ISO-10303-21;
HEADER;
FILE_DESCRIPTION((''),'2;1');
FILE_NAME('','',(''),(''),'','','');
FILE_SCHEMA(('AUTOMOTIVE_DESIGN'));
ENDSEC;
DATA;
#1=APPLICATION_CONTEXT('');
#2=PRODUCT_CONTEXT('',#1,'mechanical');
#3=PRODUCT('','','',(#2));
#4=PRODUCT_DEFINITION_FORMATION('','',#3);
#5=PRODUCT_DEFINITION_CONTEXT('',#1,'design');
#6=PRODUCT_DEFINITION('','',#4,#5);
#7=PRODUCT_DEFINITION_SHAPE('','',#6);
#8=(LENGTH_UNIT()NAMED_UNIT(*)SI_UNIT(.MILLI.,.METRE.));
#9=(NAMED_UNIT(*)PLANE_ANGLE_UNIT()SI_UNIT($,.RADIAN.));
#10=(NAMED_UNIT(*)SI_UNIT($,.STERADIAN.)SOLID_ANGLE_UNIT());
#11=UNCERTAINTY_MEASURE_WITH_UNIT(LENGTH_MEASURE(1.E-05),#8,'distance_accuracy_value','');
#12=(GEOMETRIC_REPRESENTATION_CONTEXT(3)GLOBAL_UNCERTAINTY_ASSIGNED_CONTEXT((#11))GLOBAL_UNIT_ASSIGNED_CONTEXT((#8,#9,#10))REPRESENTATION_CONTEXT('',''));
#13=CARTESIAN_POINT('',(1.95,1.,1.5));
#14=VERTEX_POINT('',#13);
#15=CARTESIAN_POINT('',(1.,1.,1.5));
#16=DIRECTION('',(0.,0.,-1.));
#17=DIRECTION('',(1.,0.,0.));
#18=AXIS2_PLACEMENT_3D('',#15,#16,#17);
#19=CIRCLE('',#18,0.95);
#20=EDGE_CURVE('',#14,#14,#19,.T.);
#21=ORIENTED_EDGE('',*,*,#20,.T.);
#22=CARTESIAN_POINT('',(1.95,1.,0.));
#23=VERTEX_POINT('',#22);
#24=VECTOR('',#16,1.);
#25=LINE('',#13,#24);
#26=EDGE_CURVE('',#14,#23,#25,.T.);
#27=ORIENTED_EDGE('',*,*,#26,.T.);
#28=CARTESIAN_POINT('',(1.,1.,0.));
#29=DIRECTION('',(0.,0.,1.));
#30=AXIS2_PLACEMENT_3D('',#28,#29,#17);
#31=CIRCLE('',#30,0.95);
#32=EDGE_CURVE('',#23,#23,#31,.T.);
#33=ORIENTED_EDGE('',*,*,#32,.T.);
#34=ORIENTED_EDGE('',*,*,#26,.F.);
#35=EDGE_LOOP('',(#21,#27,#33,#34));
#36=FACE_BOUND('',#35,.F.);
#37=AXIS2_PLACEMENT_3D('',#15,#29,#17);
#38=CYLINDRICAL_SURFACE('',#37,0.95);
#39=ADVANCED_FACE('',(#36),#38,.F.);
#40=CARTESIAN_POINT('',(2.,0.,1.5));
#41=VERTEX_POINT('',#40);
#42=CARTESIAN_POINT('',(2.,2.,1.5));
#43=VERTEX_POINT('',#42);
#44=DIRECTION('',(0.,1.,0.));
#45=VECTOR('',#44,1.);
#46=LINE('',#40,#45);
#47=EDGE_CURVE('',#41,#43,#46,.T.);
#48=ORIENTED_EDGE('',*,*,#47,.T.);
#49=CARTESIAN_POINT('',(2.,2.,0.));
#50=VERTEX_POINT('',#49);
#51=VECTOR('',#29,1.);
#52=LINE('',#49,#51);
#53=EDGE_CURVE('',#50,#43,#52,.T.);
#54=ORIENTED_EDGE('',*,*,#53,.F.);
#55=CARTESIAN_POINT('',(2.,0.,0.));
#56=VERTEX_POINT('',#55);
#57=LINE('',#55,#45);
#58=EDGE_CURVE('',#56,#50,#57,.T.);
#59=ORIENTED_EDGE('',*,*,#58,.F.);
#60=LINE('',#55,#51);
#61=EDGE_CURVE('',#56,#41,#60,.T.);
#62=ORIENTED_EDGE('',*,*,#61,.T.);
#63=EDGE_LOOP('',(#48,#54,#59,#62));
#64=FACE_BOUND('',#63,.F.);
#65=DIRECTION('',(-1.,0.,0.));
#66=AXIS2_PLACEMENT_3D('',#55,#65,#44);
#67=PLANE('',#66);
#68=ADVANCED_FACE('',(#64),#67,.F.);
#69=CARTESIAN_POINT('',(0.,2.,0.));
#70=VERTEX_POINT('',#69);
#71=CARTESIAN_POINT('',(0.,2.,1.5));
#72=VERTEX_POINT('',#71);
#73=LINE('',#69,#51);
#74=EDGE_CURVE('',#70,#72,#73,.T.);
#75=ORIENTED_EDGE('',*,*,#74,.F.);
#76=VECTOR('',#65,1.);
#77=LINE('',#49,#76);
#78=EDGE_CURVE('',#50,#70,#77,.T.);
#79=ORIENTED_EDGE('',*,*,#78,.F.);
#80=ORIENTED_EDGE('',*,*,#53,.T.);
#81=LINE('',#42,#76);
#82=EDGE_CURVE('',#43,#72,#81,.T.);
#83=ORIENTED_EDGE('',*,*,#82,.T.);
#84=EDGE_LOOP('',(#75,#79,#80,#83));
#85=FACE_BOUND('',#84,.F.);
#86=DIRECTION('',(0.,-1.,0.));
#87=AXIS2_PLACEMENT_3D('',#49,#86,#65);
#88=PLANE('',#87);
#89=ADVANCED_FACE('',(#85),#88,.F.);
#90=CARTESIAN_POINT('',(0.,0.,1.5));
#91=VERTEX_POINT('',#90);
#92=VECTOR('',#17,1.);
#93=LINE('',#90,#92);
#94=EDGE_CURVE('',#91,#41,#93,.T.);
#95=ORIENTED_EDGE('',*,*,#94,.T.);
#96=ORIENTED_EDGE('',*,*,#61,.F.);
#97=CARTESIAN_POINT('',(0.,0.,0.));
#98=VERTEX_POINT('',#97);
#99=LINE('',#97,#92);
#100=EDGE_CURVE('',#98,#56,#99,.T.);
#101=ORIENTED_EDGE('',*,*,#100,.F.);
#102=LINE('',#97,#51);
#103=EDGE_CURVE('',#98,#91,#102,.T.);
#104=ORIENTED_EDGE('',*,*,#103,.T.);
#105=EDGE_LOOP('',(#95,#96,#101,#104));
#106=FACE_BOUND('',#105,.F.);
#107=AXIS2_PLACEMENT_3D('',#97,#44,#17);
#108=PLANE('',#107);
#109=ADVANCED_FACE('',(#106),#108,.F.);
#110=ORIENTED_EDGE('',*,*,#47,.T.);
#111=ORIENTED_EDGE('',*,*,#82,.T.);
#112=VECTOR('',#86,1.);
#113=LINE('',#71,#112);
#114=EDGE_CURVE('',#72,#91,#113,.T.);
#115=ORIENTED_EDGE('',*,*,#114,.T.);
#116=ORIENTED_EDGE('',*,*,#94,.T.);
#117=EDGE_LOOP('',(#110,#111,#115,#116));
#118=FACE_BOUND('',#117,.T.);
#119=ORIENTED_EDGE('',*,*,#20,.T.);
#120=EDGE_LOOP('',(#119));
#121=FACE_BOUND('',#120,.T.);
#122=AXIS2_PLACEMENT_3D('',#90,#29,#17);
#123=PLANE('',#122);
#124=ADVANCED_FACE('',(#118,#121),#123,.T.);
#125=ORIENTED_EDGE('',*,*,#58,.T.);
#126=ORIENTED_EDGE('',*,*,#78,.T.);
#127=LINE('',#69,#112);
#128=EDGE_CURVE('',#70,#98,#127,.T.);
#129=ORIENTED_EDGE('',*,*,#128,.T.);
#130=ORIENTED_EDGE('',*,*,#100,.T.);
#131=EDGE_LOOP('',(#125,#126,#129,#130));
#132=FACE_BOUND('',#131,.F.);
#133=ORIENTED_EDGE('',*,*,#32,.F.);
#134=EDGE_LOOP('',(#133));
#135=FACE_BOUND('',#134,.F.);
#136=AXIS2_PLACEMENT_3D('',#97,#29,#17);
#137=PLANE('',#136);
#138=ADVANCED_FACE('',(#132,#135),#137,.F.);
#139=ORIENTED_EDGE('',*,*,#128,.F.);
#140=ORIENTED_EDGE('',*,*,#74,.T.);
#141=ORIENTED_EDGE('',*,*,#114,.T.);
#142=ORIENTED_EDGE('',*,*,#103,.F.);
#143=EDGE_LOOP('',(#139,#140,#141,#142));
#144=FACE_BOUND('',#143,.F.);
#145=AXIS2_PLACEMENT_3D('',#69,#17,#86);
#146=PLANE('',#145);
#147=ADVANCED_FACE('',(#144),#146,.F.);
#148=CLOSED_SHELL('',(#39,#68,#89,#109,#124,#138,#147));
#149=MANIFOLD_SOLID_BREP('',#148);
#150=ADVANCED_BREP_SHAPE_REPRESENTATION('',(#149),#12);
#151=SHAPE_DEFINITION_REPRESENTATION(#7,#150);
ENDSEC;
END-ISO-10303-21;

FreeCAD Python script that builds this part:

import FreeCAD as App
import Part
import Sketcher

V = App.Vector


def add_polygon(sketch, points):
    """Adds a closed chain of lines whose ends are joined by coincident constraints."""
    first, n = sketch.GeometryCount, len(points)
    for a, b in zip(points, points[1:] + points[:1]):
        sketch.addGeometry(Part.LineSegment(App.Vector(*a, 0), App.Vector(*b, 0)), False)
    for i in range(n):
        sketch.addConstraint(Sketcher.Constraint("Coincident", first + i, 2, first + (i + 1) % n, 1))

doc = App.newDocument("Part")
params = doc.addObject("Spreadsheet::Sheet", "Params")
for row, (alias, value) in enumerate([
    ("sketch1_width", "2 mm"),
    ("pad1_length", "1.5 mm"),
    ("sketch2_diameter", "1.9 mm"),
], start=1):
    params.set(f"A{row}", alias)
    params.set(f"B{row}", "=" + value)
    params.setAlias(f"B{row}", alias)

body = doc.addObject("PartDesign::Body", "Body")

sketch1 = body.newObject("Sketcher::SketchObject", "Sketch")
sketch1.AttachmentSupport = (doc.getObject("XY_Plane"), [""])
sketch1.MapMode = "FlatFace"
add_polygon(sketch1, [(0, 2), (0, 0), (2, 0), (2, 2)])
sketch1.addConstraint(Sketcher.Constraint("Vertical", 0))
sketch1.addConstraint(Sketcher.Constraint("Horizontal", 1))
sketch1.addConstraint(Sketcher.Constraint("Vertical", 2))
sketch1.addConstraint(Sketcher.Constraint("Horizontal", 3))
sketch1.addConstraint(Sketcher.Constraint("Coincident", 0, 2, -1, 1))
sketch1.addConstraint(Sketcher.Constraint("Equal", 3, 0))
sketch1.addConstraint(Sketcher.Constraint("DistanceX", 1, 1, 1, 2, 2.0))
sketch1.setExpression("Constraints[10]", "Params.sketch1_width")
pad1 = body.newObject("PartDesign::Pad", "Pad")
pad1.Profile = sketch1
pad1.setExpression("Length", "Params.pad1_length")

sketch2 = body.newObject("Sketcher::SketchObject", "Sketch001")
sketch2.AttachmentSupport = (doc.getObject("XY_Plane"), [""])
sketch2.MapMode = "FlatFace"
sketch2.AttachmentOffset = App.Placement(V(0, 0, 1.5), App.Rotation())
sketch2.addGeometry(Part.Circle(V(1, 1, 0), V(0, 0, 1), 0.95), False)
sketch2.addConstraint(Sketcher.Constraint("Diameter", 0, 1.9))
sketch2.addConstraint(Sketcher.Constraint("DistanceX", -1, 1, 0, 3, 1.0))
sketch2.addConstraint(Sketcher.Constraint("DistanceY", -1, 1, 0, 3, 1.0))
sketch2.setExpression("Constraints[0]", "Params.sketch2_diameter")
pocket1 = body.newObject("PartDesign::Pocket", "Pocket")
pocket1.Profile = sketch2
pocket1.Type = "ThroughAll"
pocket1.Midplane = True

doc.recompute()
